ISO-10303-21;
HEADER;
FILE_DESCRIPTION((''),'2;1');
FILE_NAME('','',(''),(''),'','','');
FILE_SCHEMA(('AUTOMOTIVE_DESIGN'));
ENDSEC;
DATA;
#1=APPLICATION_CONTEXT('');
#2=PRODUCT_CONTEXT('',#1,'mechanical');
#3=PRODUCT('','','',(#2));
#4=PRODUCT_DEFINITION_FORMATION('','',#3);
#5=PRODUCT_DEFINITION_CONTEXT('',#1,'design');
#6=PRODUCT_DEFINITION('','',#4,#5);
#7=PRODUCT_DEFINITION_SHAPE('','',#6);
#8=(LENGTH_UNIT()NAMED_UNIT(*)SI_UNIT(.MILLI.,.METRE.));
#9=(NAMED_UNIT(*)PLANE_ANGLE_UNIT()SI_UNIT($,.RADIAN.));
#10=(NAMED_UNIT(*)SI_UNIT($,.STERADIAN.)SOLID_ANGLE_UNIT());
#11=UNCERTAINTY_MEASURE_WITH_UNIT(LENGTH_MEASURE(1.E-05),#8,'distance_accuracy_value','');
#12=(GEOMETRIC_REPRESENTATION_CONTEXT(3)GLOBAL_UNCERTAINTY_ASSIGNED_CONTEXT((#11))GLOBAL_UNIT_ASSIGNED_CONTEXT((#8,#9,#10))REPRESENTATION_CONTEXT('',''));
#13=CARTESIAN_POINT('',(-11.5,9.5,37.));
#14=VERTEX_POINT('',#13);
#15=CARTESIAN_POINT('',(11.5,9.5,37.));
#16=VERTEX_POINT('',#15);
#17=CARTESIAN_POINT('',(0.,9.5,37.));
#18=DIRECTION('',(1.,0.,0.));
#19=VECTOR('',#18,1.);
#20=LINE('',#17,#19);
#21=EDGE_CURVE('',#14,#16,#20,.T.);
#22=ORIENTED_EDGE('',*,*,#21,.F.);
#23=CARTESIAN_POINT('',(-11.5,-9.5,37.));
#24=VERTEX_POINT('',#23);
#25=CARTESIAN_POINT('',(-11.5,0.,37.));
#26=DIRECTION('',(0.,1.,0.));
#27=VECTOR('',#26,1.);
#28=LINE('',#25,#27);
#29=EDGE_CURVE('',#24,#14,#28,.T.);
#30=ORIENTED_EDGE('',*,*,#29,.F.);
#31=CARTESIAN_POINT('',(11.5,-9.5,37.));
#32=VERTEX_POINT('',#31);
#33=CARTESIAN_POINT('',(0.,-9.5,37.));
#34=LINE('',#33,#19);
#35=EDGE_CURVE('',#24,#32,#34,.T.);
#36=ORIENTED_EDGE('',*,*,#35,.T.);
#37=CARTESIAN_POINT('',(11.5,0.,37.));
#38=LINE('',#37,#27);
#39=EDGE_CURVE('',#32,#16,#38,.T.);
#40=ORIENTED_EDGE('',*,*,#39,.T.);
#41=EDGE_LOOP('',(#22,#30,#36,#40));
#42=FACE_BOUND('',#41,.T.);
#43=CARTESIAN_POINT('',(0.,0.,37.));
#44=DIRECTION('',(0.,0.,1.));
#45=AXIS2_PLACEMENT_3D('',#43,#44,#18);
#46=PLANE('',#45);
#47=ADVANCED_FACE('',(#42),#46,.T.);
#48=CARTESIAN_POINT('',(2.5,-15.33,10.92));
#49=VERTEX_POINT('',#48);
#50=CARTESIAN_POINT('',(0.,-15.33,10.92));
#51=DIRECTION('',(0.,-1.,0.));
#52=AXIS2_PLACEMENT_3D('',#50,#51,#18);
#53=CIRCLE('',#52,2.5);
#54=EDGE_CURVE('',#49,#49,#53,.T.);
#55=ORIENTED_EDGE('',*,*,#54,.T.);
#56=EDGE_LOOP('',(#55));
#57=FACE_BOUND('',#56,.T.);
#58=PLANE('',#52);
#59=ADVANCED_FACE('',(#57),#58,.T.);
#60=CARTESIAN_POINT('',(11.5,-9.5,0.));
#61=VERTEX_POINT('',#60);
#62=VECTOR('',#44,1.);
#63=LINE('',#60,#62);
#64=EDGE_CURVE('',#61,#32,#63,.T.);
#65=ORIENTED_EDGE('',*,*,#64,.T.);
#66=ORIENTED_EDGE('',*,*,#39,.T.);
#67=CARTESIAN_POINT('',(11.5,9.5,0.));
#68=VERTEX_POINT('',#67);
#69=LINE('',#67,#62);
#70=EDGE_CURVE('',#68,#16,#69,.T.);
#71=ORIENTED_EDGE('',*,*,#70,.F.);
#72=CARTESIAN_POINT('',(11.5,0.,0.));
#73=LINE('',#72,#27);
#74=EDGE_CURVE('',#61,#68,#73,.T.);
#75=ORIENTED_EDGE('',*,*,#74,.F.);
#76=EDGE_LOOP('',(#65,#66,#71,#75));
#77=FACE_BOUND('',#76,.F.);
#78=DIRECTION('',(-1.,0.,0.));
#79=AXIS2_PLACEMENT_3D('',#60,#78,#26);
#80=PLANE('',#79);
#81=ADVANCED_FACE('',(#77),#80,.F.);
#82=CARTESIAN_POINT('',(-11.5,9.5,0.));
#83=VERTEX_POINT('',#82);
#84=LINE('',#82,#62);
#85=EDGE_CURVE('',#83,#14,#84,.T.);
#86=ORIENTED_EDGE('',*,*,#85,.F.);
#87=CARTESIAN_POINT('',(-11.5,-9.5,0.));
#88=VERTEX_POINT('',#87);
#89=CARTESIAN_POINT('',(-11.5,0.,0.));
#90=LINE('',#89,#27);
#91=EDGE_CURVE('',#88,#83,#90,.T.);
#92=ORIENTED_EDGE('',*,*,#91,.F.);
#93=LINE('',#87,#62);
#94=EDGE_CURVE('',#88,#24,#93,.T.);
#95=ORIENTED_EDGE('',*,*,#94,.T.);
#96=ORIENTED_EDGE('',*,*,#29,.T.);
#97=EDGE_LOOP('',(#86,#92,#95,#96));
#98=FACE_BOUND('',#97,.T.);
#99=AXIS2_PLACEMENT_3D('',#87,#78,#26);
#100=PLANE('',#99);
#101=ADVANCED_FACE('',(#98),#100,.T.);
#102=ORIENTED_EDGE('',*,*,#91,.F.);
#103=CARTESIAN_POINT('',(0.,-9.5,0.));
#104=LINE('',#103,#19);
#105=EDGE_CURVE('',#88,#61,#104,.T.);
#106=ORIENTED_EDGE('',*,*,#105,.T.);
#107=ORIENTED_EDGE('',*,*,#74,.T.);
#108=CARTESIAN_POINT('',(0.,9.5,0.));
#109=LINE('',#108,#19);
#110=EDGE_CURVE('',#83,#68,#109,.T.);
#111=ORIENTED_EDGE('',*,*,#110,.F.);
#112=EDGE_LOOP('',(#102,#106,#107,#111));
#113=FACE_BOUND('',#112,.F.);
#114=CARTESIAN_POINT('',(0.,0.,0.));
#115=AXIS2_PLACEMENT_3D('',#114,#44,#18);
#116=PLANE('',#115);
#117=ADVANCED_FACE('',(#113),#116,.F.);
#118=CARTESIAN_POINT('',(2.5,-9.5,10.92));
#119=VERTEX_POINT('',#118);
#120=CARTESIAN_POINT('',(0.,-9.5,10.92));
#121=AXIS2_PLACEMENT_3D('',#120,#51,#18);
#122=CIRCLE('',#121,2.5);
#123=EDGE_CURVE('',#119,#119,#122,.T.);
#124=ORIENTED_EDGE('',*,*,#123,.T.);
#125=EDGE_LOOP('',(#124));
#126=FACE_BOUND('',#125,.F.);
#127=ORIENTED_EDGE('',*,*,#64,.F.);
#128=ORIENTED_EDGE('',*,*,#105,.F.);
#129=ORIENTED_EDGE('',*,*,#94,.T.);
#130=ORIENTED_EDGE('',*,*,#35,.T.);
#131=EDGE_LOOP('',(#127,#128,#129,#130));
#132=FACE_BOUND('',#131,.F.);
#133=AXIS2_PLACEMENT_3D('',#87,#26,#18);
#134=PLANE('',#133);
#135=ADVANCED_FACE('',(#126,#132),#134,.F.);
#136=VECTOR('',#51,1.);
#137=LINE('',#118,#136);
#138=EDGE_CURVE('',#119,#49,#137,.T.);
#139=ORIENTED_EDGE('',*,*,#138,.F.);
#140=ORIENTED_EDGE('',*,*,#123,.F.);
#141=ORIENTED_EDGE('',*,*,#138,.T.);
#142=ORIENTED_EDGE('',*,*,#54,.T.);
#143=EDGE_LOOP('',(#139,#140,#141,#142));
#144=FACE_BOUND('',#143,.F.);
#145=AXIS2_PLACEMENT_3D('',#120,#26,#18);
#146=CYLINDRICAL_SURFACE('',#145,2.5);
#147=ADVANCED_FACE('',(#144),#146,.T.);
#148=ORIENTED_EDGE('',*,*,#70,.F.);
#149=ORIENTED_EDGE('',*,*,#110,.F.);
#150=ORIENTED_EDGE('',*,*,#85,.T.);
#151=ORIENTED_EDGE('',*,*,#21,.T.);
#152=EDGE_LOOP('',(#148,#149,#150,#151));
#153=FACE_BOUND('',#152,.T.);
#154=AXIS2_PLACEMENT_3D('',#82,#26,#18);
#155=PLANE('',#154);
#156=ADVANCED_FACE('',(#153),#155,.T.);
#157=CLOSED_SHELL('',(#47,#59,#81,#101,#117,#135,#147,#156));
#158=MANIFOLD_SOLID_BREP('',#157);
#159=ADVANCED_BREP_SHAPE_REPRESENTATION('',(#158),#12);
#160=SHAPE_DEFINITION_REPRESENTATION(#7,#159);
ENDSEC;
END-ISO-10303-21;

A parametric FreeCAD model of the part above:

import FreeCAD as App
import Part
import Sketcher


def add_polygon(sketch, points):
    """Adds a closed chain of lines whose ends are joined by coincident constraints."""
    first, n = sketch.GeometryCount, len(points)
    for a, b in zip(points, points[1:] + points[:1]):
        sketch.addGeometry(Part.LineSegment(App.Vector(*a, 0), App.Vector(*b, 0)), False)
    for i in range(n):
        sketch.addConstraint(Sketcher.Constraint("Coincident", first + i, 2, first + (i + 1) % n, 1))

doc = App.newDocument("Part")
params = doc.addObject("Spreadsheet::Sheet", "Params")
for row, (alias, value) in enumerate([
    ("sketch1_width", "23 mm"),
    ("sketch1_height", "19 mm"),
    ("pad1_length", "37 mm"),
    ("sketch2_diameter", "5 mm"),
    ("pad2_length", "5.83 mm"),
], start=1):
    params.set(f"A{row}", alias)
    params.set(f"B{row}", "=" + value)
    params.setAlias(f"B{row}", alias)

body = doc.addObject("PartDesign::Body", "Body")

# Sketch on XY plane
sketch1 = body.newObject("Sketcher::SketchObject", "Sketch")
sketch1.AttachmentSupport = (doc.getObject("XY_Plane"), [""])
sketch1.MapMode = "FlatFace"
add_polygon(sketch1, [(-11.5, 9.5), (-11.5, -9.5), (11.5, -9.5), (11.5, 9.5)])  # lines 0-3
sketch1.addConstraint(Sketcher.Constraint("Vertical", 0))
sketch1.addConstraint(Sketcher.Constraint("Horizontal", 1))
sketch1.addConstraint(Sketcher.Constraint("Vertical", 2))
sketch1.addConstraint(Sketcher.Constraint("Horizontal", 3))
sketch1.addConstraint(Sketcher.Constraint("Symmetric", 0, 2, 2, 2, -1, 1))
sketch1.addConstraint(Sketcher.Constraint("DistanceX", 1, 1, 1, 2, 23.0))
sketch1.addConstraint(Sketcher.Constraint("DistanceY", 0, 2, 0, 1, 19.0))
sketch1.setExpression("Constraints[9]", "Params.sketch1_width")
sketch1.setExpression("Constraints[10]", "Params.sketch1_height")
pad1 = body.newObject("PartDesign::Pad", "Pad")
pad1.Profile = sketch1
pad1.setExpression("Length", "Params.pad1_length")

# Sketch on XZ plane
sketch2 = body.newObject("Sketcher::SketchObject", "Sketch001")
sketch2.AttachmentSupport = (doc.getObject("XZ_Plane"), [""])
sketch2.MapMode = "FlatFace"
sketch2.AttachmentOffset = App.Placement(App.Vector(0, 0, 9.5), App.Rotation())
sketch2.addGeometry(Part.Circle(App.Vector(0, 10.92, 0), App.Vector(0, 0, 1), 2.5), False)
sketch2.addConstraint(Sketcher.Constraint("PointOnObject", 0, 3, -2))
sketch2.addConstraint(Sketcher.Constraint("Diameter", 0, 5.0))
sketch2.addConstraint(Sketcher.Constraint("DistanceY", -1, 1, 0, 3, 10.92))
sketch2.setExpression("Constraints[1]", "Params.sketch2_diameter")
pad2 = body.newObject("PartDesign::Pad", "Pad001")
pad2.Profile = sketch2
pad2.setExpression("Length", "Params.pad2_length")

doc.recompute()
